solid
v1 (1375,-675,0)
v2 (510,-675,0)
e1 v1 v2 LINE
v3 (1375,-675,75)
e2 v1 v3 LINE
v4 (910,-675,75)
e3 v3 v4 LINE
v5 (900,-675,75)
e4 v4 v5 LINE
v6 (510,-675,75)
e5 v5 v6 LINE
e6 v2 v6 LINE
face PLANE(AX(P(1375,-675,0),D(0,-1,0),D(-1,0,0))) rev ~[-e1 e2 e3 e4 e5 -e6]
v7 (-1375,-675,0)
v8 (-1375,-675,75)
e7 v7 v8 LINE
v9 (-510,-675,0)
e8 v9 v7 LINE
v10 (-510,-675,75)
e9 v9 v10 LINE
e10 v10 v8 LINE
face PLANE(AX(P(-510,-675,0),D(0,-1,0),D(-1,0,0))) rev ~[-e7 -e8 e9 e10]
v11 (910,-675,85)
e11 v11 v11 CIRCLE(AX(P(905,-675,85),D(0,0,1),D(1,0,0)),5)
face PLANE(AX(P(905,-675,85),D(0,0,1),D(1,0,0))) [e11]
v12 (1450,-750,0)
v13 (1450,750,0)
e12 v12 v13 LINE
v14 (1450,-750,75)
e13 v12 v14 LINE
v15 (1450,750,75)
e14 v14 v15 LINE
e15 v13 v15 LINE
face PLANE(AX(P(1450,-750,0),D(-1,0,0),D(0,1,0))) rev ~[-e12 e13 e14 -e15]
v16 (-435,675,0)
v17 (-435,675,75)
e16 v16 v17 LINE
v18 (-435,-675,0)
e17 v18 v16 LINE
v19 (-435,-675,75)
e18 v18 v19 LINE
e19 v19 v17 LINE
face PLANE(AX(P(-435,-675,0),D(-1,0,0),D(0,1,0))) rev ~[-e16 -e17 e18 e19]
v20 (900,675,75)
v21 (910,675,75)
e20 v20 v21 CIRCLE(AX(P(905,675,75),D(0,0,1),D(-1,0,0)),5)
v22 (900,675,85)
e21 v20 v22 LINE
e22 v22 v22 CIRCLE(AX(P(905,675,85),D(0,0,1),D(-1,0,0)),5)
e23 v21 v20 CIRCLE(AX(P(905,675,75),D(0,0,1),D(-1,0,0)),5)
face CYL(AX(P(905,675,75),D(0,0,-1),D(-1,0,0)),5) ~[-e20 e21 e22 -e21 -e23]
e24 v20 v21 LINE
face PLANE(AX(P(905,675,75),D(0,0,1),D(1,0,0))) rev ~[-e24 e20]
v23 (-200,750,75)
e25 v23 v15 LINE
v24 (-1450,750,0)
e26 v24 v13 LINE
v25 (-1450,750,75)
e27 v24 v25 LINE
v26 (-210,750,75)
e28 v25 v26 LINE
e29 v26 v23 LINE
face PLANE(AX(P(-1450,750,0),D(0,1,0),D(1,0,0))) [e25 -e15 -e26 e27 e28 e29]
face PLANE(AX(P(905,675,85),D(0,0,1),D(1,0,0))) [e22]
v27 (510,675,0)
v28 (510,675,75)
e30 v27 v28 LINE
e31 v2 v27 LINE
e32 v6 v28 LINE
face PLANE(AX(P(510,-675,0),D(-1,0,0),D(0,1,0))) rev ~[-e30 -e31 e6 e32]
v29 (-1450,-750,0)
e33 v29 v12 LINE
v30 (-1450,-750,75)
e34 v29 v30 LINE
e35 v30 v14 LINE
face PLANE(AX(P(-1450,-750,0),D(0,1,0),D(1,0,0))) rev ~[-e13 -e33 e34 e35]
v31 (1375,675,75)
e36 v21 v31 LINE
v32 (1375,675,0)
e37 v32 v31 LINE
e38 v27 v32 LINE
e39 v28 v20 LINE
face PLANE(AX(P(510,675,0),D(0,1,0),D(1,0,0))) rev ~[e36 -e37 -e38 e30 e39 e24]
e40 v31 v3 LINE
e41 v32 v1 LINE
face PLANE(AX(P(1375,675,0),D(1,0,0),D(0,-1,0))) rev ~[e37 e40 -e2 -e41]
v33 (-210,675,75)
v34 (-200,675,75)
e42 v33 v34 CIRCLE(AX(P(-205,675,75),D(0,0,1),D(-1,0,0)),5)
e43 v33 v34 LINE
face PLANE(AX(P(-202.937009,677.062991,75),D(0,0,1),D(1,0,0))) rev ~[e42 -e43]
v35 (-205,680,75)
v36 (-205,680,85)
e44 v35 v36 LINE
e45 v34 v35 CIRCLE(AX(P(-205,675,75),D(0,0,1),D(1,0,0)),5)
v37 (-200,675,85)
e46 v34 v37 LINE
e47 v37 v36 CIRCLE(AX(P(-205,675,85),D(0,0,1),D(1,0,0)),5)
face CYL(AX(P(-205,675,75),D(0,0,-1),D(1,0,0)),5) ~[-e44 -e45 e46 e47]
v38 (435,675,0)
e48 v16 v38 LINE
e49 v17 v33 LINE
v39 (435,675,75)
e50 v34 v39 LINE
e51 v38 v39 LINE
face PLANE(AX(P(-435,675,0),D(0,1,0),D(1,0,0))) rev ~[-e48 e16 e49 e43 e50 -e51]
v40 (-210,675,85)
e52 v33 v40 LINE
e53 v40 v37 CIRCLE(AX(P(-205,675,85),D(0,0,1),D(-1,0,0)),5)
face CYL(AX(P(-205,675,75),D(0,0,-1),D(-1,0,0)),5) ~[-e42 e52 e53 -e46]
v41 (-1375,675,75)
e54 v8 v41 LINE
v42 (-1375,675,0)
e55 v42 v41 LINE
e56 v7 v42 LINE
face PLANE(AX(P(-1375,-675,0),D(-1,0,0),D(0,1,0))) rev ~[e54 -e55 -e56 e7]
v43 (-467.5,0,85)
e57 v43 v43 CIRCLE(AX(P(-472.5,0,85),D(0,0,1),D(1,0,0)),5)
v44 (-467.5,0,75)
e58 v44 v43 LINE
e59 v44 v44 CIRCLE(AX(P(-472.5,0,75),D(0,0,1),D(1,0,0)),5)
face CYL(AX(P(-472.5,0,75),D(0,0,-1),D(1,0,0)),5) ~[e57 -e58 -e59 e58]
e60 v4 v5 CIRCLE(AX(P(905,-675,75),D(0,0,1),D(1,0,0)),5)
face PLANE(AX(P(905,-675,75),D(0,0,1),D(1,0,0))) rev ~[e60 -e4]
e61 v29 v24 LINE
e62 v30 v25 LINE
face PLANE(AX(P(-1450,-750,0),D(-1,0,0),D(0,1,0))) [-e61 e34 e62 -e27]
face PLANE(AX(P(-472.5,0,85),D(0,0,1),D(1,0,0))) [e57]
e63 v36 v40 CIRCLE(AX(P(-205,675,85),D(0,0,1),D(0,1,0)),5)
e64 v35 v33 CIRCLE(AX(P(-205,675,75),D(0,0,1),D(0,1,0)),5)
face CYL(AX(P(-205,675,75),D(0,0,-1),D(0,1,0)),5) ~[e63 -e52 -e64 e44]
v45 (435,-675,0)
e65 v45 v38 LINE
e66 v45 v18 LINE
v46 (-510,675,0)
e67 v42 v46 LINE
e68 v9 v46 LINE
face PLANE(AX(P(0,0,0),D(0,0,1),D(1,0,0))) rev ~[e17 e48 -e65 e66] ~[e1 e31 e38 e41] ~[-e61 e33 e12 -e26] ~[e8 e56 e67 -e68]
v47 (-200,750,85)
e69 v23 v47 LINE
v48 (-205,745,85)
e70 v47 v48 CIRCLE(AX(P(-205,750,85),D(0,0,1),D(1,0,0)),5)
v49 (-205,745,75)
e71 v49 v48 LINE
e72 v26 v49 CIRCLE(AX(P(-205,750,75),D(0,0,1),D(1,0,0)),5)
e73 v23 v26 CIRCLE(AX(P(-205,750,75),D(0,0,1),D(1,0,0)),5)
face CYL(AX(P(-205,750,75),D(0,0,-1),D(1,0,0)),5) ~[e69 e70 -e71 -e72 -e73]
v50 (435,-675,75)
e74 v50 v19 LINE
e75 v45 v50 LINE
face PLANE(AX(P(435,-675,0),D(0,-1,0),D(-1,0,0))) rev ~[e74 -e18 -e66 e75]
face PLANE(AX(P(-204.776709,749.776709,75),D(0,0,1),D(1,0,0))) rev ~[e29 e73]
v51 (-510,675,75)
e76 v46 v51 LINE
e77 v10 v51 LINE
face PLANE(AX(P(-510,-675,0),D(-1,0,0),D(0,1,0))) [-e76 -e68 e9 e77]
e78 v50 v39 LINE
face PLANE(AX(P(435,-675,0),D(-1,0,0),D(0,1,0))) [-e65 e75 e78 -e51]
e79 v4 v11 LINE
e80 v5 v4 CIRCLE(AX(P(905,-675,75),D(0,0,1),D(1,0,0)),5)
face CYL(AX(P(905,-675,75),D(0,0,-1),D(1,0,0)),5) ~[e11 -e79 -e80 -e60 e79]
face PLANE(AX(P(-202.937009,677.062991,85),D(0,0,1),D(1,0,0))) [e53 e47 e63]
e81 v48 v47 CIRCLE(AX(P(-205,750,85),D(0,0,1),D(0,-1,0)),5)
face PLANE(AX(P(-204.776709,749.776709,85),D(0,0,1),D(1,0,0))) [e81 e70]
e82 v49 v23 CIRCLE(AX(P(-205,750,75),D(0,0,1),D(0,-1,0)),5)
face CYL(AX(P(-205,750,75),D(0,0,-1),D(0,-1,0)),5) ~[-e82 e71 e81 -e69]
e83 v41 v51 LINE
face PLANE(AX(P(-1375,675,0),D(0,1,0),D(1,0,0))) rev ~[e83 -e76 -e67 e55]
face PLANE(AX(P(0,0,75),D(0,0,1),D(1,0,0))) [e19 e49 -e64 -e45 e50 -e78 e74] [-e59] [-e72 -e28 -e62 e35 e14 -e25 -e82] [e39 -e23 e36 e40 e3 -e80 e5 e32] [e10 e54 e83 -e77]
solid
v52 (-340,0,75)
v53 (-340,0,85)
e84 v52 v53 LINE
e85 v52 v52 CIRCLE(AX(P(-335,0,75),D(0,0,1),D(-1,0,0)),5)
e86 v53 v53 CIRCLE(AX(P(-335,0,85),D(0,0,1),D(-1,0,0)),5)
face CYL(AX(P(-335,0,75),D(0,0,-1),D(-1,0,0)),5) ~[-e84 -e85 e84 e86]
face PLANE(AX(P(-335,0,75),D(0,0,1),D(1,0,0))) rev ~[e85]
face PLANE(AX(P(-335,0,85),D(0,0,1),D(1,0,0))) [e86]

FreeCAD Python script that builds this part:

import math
import FreeCAD as App
import Part
import Sketcher


def add_polygon(sketch, points):
    """Adds a closed chain of lines whose ends are joined by coincident constraints."""
    first, n = sketch.GeometryCount, len(points)
    for a, b in zip(points, points[1:] + points[:1]):
        sketch.addGeometry(Part.LineSegment(App.Vector(*a, 0), App.Vector(*b, 0)), False)
    for i in range(n):
        sketch.addConstraint(Sketcher.Constraint("Coincident", first + i, 2, first + (i + 1) % n, 1))

doc = App.newDocument("Part")
body = doc.addObject("PartDesign::Body", "Body")

sketch1 = body.newObject("Sketcher::SketchObject", "Sketch")
sketch1.AttachmentSupport = (doc.getObject("XY_Plane"), [""])
sketch1.MapMode = "FlatFace"
add_polygon(sketch1, [(-1450, 750), (-1450, -750), (1450, -750), (1450, 750)])
add_polygon(sketch1, [(1375, -675), (510, -675), (510, 675), (1375, 675)])
add_polygon(sketch1, [(435, -675), (-435, -675), (-435, 675), (435, 675)])
add_polygon(sketch1, [(-510, -675), (-1375, -675), (-1375, 675), (-510, 675)])
sketch1.addConstraint([
    Sketcher.Constraint("Vertical", 0),
    Sketcher.Constraint("Horizontal", 1),
    Sketcher.Constraint("Vertical", 2),
    Sketcher.Constraint("Horizontal", 3),
    Sketcher.Constraint("Horizontal", 4),
    Sketcher.Constraint("Vertical", 5),
    Sketcher.Constraint("Horizontal", 6),
    Sketcher.Constraint("Vertical", 7),
    Sketcher.Constraint("Horizontal", 8),
    Sketcher.Constraint("Vertical", 9),
    Sketcher.Constraint("Horizontal", 10),
    Sketcher.Constraint("Vertical", 11),
    Sketcher.Constraint("Horizontal", 12),
    Sketcher.Constraint("Vertical", 13),
    Sketcher.Constraint("Horizontal", 14),
    Sketcher.Constraint("Vertical", 15),
    Sketcher.Constraint("Symmetric", 0, 2, 2, 2, -1, 1),
    Sketcher.Constraint("Symmetric", 8, 2, 10, 2, -1, 1),
    Sketcher.Constraint("Symmetric", 6, 2, 12, 2, -1, 1),
    Sketcher.Constraint("Symmetric", 4, 2, 14, 2, -1, 1),
    Sketcher.Constraint("Horizontal", 7, 2, 8, 2),
    Sketcher.Constraint("Horizontal", 6, 2, 9, 2),
    Sketcher.Constraint("DistanceX", 1, 1, 1, 2, 2900.0),
    Sketcher.Constraint("DistanceX", 4, 2, 4, 1, 865.0),
    Sketcher.Constraint("DistanceX", 8, 2, 8, 1, 870.0),
    Sketcher.Constraint("DistanceY", 0, 2, 0, 1, 1500.0),
    Sketcher.Constraint("DistanceY", 5, 1, 5, 2, 1350.0),
    Sketcher.Constraint("DistanceX", -1, 1, 4, 2, 510.0),
])
pad1 = body.newObject("PartDesign::Pad", "Pad")
pad1.Profile = sketch1
pad1.Length = 75

sketch2 = body.newObject("Sketcher::SketchObject", "Sketch001")
sketch2.AttachmentSupport = (doc.getObject("XY_Plane"), [""])
sketch2.MapMode = "FlatFace"
sketch2.AttachmentOffset = App.Placement(App.Vector(0, 0, 75), App.Rotation())
sketch2.addGeometry([
    Part.Circle(App.Vector(-472, 0, 0), App.Vector(0, 0, 1), 5),
    Part.ArcOfCircle(Part.Circle(App.Vector(-205, 675, 0), App.Vector(0, 0, 1), 5), math.radians(180), math.radians(360)),
    Part.ArcOfCircle(Part.Circle(App.Vector(-205, 675, 0), App.Vector(0, 0, 1), 5), math.radians(0), math.radians(90)),
    Part.ArcOfCircle(Part.Circle(App.Vector(-205, 675, 0), App.Vector(0, 0, 1), 5), math.radians(90), math.radians(180)),
    Part.Circle(App.Vector(905, 675, 0), App.Vector(0, 0, 1), 5),
    Part.ArcOfCircle(Part.Circle(App.Vector(-205, 750, 0), App.Vector(0, 0, 1), 5), math.radians(0), math.radians(270)),
    Part.ArcOfCircle(Part.Circle(App.Vector(-205, 750, 0), App.Vector(0, 0, 1), 5), math.radians(-90), math.radians(0)),
    Part.Circle(App.Vector(905, -675, 0), App.Vector(0, 0, 1), 5),
], False)
sketch2.addConstraint([
    Sketcher.Constraint("Tangent", 1, 2, 2, 1),
    Sketcher.Constraint("Tangent", 2, 2, 3, 1),
    Sketcher.Constraint("Tangent", 3, 2, 1, 1),
    Sketcher.Constraint("Tangent", 5, 1, 6, 2),
    Sketcher.Constraint("Coincident", 6, 1, 5, 2),
    Sketcher.Constraint("Equal", 0, 1),
    Sketcher.Constraint("Equal", 3, 4),
    Sketcher.Constraint("Equal", 4, 5),
    Sketcher.Constraint("Equal", 6, 7),
    Sketcher.Constraint("Symmetric", 4, 3, 7, 3, -1),
    Sketcher.Constraint("PointOnObject", 0, 3, -1),
    Sketcher.Constraint("Horizontal", 3, 3, 4, 3),
    Sketcher.Constraint("Horizontal", 4, 3, 1, 2),
    Sketcher.Constraint("Horizontal", 1, 2, 3, 2),
    Sketcher.Constraint("Horizontal", 6, 3, 5, 1),
    Sketcher.Constraint("Vertical", 3, 3, 5, 3),
    Sketcher.Constraint("Vertical", 6, 3, 2, 2),
    Sketcher.Constraint("Vertical", 2, 2, 6, 1),
    Sketcher.Constraint("Diameter", 0, 10.0),
    Sketcher.Constraint("DistanceX", 1, 3, -1, 1, 205.0),
    Sketcher.Constraint("DistanceY", -1, 1, 1, 3, 675.0),
    Sketcher.Constraint("DistanceX", -1, 1, 4, 3, 905.0),
    Sketcher.Constraint("DistanceY", -1, 1, 5, 3, 750.0),
    Sketcher.Constraint("DistanceX", 0, 3, -1, 1, 472.5),
])
pad2 = body.newObject("PartDesign::Pad", "Pad001")
pad2.Profile = sketch2
pad2.Length = 10

sketch3 = body.newObject("Sketcher::SketchObject", "Sketch002")
sketch3.AttachmentSupport = (doc.getObject("XY_Plane"), [""])
sketch3.MapMode = "FlatFace"
sketch3.AttachmentOffset = App.Placement(App.Vector(0, 0, 75), App.Rotation())
sketch3.addGeometry([
    Part.Circle(App.Vector(-472, 0, 0), App.Vector(0, 0, 1), 5),
    Part.ArcOfCircle(Part.Circle(App.Vector(-205, 675, 0), App.Vector(0, 0, 1), 5), math.radians(180), math.radians(360)),
    Part.ArcOfCircle(Part.Circle(App.Vector(-205, 675, 0), App.Vector(0, 0, 1), 5), math.radians(0), math.radians(90)),
    Part.ArcOfCircle(Part.Circle(App.Vector(-205, 675, 0), App.Vector(0, 0, 1), 5), math.radians(90), math.radians(180)),
    Part.Circle(App.Vector(905, 675, 0), App.Vector(0, 0, 1), 5),
    Part.ArcOfCircle(Part.Circle(App.Vector(-205, 750, 0), App.Vector(0, 0, 1), 5), math.radians(0), math.radians(270)),
    Part.ArcOfCircle(Part.Circle(App.Vector(-205, 750, 0), App.Vector(0, 0, 1), 5), math.radians(-90), math.radians(0)),
    Part.Circle(App.Vector(905, -675, 0), App.Vector(0, 0, 1), 5),
], False)
sketch3.addConstraint([
    Sketcher.Constraint("Tangent", 1, 2, 2, 1),
    Sketcher.Constraint("Tangent", 2, 2, 3, 1),
    Sketcher.Constraint("Tangent", 3, 2, 1, 1),
    Sketcher.Constraint("Tangent", 5, 1, 6, 2),
    Sketcher.Constraint("Coincident", 6, 1, 5, 2),
    Sketcher.Constraint("Equal", 0, 1),
    Sketcher.Constraint("Equal", 3, 4),
    Sketcher.Constraint("Equal", 4, 5),
    Sketcher.Constraint("Equal", 6, 7),
    Sketcher.Constraint("Symmetric", 4, 3, 7, 3, -1),
    Sketcher.Constraint("PointOnObject", 0, 3, -1),
    Sketcher.Constraint("Horizontal", 3, 3, 4, 3),
    Sketcher.Constraint("Horizontal", 4, 3, 1, 2),
    Sketcher.Constraint("Horizontal", 1, 2, 3, 2),
    Sketcher.Constraint("Horizontal", 6, 3, 5, 1),
    Sketcher.Constraint("Vertical", 3, 3, 5, 3),
    Sketcher.Constraint("Vertical", 6, 3, 2, 2),
    Sketcher.Constraint("Vertical", 2, 2, 6, 1),
    Sketcher.Constraint("Diameter", 0, 10.0),
    Sketcher.Constraint("DistanceX", 1, 3, -1, 1, 205.0),
    Sketcher.Constraint("DistanceY", -1, 1, 1, 3, 675.0),
    Sketcher.Constraint("DistanceX", -1, 1, 4, 3, 905.0),
    Sketcher.Constraint("DistanceY", -1, 1, 5, 3, 750.0),
    Sketcher.Constraint("DistanceX", 0, 3, -1, 1, 472.5),
])
pad3 = body.newObject("PartDesign::Pad", "Pad002")
pad3.Profile = sketch3
pad3.Length = 10
body2 = doc.addObject("PartDesign::Body", "Body001")

sketch4 = body2.newObject("Sketcher::SketchObject", "Sketch003")
sketch4.AttachmentSupport = (doc.getObject("XY_Plane001"), [""])
sketch4.MapMode = "FlatFace"
sketch4.AttachmentOffset = App.Placement(App.Vector(0, 0, 75), App.Rotation())
sketch4.addGeometry(Part.Circle(App.Vector(-335, 0, 0), App.Vector(0, 0, 1), 5), False)
sketch4.addConstraint([
    Sketcher.Constraint("PointOnObject", 0, 3, -1),
    Sketcher.Constraint("Diameter", 0, 10.0),
    Sketcher.Constraint("DistanceX", 0, 3, -1, 1, 335.0),
])
pad4 = body2.newObject("PartDesign::Pad", "Pad003")
pad4.Profile = sketch4
pad4.Length = 10

sketch5 = body2.newObject("Sketcher::SketchObject", "Sketch004")
sketch5.AttachmentSupport = (doc.getObject("XY_Plane001"), [""])
sketch5.MapMode = "FlatFace"
sketch5.AttachmentOffset = App.Placement(App.Vector(0, 0, 75), App.Rotation())
sketch5.addGeometry(Part.Circle(App.Vector(-335, 0, 0), App.Vector(0, 0, 1), 5), False)
sketch5.addConstraint([
    Sketcher.Constraint("PointOnObject", 0, 3, -1),
    Sketcher.Constraint("Diameter", 0, 10.0),
    Sketcher.Constraint("DistanceX", 0, 3, -1, 1, 335.0),
])
pad5 = body2.newObject("PartDesign::Pad", "Pad004")
pad5.Profile = sketch5
pad5.Length = 10

doc.recompute()
